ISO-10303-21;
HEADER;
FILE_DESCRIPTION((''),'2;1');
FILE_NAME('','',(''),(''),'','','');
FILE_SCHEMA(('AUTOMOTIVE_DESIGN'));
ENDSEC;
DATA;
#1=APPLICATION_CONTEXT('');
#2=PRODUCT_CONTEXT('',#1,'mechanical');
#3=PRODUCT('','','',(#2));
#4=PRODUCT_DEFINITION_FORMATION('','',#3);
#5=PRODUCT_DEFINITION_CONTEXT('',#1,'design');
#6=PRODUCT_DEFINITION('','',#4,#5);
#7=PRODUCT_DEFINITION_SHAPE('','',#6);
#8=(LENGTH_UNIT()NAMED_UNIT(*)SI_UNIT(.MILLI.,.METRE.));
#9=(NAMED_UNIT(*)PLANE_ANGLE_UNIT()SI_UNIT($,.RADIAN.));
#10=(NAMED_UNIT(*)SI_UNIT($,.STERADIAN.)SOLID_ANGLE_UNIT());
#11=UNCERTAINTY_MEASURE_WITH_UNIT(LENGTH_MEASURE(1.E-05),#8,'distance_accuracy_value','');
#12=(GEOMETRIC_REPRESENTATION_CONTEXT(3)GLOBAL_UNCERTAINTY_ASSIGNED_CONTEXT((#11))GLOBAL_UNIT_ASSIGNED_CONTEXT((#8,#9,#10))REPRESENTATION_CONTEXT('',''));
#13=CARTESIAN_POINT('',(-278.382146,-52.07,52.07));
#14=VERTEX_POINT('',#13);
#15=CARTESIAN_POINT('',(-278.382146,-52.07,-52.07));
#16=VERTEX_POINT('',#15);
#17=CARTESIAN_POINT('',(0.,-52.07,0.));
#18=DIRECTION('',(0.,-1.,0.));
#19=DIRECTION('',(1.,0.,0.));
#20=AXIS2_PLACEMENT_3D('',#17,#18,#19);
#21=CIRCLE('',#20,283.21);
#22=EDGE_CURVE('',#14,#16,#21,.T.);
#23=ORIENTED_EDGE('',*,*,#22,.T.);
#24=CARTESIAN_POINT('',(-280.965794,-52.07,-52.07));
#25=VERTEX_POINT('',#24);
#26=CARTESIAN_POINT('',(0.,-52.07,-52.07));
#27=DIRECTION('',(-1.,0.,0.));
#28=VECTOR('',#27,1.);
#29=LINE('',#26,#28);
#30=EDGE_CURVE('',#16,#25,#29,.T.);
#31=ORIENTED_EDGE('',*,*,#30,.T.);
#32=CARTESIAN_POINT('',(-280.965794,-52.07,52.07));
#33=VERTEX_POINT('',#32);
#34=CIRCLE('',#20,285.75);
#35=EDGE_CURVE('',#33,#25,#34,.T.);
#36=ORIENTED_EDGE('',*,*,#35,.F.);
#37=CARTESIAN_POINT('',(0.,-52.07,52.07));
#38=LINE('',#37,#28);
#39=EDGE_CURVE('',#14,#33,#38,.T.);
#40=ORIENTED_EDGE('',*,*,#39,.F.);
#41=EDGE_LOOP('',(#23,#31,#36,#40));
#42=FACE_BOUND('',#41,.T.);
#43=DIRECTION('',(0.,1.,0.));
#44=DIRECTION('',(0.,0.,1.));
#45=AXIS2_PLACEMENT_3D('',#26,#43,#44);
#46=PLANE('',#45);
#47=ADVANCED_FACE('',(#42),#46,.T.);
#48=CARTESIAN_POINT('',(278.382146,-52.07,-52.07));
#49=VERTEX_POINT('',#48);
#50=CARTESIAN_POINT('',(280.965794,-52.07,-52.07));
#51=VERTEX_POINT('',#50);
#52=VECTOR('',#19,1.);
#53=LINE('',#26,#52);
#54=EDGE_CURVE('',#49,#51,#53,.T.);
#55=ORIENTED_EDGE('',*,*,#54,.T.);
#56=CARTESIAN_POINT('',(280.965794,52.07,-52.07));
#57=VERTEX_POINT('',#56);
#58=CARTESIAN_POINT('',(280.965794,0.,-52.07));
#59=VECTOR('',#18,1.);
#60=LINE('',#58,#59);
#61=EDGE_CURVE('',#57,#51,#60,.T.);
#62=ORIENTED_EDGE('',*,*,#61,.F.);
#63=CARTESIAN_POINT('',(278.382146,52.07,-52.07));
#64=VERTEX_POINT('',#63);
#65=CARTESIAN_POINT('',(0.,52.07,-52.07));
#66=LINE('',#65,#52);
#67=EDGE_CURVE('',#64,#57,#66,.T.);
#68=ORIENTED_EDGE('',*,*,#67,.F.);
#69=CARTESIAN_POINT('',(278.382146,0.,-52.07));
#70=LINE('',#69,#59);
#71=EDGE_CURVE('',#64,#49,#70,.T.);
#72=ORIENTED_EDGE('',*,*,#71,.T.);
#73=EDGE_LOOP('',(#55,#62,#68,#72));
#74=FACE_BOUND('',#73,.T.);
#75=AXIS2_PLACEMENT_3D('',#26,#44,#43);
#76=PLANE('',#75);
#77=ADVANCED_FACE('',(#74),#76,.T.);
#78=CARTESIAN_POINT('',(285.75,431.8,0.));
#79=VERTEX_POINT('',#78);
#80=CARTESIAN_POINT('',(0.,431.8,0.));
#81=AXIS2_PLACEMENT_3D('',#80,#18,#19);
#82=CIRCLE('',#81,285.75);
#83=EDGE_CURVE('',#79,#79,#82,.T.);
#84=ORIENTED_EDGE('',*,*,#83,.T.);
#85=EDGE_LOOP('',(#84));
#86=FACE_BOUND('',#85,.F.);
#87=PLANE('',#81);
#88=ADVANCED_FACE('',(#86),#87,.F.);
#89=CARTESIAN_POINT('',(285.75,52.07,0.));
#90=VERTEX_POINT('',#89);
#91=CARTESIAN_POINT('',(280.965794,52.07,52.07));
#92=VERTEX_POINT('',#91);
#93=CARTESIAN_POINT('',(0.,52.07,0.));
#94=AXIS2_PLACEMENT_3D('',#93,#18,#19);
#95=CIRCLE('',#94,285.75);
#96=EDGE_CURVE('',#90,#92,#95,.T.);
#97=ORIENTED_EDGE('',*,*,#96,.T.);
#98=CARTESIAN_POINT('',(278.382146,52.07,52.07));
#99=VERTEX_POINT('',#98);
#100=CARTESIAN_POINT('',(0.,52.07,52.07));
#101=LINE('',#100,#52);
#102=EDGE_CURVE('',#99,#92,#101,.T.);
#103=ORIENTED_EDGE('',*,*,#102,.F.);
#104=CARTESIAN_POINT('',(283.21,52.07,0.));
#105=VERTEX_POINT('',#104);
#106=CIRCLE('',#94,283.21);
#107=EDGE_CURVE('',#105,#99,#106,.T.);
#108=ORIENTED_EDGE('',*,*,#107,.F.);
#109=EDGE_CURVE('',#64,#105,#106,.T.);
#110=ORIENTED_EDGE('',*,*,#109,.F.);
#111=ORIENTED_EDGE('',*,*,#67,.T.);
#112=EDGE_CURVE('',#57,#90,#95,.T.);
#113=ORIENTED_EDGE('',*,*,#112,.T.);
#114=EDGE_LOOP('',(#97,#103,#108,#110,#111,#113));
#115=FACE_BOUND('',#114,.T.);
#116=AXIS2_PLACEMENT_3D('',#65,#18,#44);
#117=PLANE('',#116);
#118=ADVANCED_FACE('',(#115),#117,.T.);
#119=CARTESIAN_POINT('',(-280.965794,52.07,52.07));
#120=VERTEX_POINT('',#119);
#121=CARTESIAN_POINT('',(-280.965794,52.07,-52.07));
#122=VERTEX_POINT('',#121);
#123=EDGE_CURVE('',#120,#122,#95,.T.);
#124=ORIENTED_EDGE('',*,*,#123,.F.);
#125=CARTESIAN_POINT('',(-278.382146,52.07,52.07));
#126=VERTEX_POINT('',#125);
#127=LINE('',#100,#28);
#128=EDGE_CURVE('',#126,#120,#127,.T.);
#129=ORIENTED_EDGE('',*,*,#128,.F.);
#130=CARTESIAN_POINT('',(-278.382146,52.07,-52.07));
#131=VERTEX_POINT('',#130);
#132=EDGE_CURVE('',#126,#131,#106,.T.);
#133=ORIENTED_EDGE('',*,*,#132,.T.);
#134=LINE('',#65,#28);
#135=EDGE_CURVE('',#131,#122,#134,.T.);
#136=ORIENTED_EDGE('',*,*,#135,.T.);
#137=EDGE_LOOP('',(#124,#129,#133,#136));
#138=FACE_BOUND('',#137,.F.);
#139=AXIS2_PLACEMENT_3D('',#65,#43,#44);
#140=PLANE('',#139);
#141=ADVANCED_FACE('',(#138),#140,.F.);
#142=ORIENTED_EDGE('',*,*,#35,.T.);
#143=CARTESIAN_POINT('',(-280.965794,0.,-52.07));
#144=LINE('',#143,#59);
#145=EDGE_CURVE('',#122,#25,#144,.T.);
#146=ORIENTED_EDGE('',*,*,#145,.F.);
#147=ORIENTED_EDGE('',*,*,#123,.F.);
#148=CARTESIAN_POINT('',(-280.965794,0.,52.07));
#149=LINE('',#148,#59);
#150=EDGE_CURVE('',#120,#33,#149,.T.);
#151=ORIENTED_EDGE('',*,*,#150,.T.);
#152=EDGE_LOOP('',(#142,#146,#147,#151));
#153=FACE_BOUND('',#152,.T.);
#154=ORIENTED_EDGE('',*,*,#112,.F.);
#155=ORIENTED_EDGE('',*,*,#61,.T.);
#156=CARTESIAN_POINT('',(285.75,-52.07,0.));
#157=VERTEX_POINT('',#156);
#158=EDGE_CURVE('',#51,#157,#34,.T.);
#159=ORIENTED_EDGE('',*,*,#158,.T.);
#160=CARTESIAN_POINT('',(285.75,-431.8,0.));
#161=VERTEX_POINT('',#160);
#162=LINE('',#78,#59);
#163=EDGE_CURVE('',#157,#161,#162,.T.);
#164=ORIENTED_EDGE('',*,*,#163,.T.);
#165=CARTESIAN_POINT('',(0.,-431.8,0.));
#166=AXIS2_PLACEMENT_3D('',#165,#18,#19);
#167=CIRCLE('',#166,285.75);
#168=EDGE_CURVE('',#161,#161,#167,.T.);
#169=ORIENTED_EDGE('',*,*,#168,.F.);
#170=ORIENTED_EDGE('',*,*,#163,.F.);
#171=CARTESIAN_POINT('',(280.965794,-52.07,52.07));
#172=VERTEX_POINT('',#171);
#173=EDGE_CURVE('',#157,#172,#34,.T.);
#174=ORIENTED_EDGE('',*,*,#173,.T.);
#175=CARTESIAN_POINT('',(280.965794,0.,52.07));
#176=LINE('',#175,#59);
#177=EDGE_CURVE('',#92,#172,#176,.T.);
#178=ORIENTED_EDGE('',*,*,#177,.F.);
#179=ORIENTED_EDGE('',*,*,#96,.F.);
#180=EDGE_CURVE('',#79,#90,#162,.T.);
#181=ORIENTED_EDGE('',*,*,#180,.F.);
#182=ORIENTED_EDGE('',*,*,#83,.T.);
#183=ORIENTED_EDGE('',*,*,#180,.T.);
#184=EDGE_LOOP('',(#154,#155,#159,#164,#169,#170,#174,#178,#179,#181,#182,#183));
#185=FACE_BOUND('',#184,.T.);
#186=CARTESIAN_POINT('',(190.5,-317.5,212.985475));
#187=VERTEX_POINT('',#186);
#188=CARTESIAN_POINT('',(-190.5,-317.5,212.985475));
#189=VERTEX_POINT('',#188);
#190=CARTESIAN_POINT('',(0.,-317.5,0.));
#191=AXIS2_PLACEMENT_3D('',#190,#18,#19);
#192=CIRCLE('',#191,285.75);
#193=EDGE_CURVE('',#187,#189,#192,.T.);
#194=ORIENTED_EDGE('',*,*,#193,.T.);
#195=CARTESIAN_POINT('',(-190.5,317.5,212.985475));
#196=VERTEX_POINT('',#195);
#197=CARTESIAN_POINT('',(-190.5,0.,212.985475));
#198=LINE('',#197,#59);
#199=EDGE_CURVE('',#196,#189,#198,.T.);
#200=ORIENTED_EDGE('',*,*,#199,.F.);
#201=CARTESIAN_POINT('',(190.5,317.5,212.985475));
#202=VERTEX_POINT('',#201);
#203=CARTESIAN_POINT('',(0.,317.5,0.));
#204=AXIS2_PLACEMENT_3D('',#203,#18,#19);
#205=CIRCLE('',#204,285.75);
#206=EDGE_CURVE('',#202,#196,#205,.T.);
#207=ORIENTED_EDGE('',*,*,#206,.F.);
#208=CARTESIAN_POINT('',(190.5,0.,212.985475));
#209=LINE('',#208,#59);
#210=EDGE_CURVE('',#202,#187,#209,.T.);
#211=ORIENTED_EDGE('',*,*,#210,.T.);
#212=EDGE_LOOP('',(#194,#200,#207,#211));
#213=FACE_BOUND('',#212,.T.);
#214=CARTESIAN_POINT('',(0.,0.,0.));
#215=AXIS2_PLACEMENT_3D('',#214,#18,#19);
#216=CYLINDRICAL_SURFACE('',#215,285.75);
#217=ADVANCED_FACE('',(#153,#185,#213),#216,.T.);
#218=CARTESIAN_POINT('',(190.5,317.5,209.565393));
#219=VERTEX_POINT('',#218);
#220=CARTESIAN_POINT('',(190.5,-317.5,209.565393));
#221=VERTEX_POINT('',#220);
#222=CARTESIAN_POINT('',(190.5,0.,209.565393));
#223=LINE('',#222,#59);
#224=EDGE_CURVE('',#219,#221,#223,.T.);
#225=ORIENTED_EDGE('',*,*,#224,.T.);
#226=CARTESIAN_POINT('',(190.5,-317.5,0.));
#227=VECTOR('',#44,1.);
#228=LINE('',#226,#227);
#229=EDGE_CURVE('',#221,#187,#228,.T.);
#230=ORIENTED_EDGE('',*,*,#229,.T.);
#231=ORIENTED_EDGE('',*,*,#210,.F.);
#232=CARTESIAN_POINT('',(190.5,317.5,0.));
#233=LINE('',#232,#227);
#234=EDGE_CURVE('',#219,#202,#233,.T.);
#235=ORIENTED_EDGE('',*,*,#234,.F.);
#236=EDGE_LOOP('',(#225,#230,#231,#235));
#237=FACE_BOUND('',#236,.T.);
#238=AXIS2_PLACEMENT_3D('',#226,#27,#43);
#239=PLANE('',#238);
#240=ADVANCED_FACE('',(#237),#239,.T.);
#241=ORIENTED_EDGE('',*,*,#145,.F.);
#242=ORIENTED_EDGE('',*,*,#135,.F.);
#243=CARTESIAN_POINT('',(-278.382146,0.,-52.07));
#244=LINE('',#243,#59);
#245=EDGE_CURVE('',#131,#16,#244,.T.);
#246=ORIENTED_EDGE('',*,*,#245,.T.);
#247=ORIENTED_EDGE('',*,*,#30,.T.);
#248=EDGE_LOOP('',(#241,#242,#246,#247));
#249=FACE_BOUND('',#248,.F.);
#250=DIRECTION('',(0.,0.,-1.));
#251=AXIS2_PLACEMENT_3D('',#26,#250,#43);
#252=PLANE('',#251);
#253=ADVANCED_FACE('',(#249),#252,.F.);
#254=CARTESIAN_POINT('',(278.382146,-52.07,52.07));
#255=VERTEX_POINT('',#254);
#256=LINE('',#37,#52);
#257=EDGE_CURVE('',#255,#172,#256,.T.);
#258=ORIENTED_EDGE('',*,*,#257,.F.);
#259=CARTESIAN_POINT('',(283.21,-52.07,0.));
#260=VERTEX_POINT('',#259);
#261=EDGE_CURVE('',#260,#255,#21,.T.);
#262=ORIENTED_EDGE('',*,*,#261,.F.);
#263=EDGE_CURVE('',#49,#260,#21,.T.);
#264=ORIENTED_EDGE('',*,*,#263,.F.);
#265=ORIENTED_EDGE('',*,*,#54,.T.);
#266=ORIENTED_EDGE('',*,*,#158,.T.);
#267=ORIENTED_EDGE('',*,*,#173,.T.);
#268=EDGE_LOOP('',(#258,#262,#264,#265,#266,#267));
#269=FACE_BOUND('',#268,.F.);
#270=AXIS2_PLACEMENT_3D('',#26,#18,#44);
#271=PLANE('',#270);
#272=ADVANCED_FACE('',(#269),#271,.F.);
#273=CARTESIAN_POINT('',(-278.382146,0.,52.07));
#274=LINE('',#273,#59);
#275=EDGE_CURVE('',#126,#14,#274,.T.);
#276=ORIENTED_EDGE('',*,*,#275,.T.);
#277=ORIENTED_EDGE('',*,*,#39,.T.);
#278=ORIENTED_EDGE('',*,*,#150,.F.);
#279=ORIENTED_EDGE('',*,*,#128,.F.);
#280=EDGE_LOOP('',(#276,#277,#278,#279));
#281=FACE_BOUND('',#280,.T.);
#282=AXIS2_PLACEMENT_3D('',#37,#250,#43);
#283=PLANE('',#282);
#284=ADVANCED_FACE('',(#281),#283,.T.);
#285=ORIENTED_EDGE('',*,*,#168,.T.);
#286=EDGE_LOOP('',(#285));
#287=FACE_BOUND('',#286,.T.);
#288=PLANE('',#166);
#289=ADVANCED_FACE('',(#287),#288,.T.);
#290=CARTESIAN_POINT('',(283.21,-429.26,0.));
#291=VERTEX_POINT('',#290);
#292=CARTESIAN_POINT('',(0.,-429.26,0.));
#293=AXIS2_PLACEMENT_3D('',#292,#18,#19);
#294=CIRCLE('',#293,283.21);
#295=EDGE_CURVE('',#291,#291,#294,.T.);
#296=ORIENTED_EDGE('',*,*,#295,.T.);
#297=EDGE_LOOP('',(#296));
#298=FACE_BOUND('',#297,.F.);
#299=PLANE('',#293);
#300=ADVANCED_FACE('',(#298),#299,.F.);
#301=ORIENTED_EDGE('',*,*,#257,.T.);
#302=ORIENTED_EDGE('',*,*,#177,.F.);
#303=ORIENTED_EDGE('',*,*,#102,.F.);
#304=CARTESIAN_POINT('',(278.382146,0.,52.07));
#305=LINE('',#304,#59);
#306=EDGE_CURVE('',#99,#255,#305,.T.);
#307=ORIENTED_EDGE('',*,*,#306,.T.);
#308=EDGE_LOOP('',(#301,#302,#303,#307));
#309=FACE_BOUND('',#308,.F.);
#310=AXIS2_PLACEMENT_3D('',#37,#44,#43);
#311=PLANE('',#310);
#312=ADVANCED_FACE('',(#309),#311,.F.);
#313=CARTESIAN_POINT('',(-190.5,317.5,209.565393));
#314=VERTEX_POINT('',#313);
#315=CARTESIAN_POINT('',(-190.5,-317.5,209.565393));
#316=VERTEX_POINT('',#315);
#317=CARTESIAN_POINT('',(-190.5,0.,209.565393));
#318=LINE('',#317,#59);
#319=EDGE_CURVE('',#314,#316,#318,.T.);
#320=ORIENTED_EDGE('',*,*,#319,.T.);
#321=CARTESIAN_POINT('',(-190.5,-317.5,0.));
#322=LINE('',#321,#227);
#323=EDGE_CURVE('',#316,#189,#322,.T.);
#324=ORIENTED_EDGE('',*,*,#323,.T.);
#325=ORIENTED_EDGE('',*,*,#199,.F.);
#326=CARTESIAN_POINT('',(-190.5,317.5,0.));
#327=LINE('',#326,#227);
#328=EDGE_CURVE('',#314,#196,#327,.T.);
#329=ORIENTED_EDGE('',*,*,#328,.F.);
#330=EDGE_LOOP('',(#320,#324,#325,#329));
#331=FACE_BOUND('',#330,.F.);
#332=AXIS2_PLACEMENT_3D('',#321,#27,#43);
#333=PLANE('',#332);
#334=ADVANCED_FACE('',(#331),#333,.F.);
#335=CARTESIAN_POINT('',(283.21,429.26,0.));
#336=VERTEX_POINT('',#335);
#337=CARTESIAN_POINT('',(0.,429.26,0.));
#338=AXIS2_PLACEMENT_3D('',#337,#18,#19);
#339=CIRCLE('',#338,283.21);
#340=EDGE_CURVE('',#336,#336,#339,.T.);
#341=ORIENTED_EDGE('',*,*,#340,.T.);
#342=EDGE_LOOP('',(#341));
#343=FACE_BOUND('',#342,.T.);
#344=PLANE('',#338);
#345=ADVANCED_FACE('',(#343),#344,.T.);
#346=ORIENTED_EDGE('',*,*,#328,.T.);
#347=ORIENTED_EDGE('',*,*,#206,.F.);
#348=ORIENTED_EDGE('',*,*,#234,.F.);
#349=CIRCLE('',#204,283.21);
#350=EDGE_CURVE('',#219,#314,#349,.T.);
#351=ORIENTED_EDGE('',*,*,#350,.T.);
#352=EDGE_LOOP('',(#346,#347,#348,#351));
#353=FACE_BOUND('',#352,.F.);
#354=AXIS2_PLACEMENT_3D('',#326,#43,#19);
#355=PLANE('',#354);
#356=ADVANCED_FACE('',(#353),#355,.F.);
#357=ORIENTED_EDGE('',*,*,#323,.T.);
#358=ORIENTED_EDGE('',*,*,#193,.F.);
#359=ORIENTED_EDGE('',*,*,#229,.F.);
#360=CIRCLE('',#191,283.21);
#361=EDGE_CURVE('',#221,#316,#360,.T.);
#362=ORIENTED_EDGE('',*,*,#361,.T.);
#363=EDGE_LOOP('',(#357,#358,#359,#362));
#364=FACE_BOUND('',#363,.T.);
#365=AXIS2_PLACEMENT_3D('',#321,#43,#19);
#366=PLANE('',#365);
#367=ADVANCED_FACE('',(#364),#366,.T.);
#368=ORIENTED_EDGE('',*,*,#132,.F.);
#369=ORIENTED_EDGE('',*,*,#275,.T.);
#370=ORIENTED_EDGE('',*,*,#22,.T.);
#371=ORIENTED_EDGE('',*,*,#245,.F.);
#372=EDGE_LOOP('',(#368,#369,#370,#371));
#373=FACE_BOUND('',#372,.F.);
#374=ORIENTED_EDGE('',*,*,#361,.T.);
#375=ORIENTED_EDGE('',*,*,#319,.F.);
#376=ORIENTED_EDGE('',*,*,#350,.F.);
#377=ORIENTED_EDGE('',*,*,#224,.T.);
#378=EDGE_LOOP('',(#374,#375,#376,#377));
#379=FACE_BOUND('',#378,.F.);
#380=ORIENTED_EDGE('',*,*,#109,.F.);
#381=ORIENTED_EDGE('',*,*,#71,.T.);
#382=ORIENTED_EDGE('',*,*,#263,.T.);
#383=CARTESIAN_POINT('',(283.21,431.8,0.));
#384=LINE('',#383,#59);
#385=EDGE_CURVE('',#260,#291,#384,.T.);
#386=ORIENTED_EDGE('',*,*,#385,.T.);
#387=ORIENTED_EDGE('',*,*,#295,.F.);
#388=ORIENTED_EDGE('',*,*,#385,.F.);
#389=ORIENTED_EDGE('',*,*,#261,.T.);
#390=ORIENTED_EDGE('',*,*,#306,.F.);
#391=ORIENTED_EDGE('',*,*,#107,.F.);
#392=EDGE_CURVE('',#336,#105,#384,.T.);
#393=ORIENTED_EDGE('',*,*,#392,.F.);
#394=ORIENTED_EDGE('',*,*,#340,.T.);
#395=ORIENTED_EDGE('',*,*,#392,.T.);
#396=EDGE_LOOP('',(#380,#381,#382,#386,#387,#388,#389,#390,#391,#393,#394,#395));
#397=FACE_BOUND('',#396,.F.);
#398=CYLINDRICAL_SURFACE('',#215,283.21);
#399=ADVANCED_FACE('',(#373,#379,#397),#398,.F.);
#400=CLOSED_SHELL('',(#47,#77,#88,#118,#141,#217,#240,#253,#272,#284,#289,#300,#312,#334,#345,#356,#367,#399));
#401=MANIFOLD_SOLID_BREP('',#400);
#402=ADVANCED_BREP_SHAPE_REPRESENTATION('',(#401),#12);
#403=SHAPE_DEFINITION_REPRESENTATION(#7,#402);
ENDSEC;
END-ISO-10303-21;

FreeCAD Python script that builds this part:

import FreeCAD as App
import Part
import Sketcher

V = App.Vector
Q = App.Units.Quantity


def faces_at(feature, points):
    """Names of the faces that lie closest to the given points."""
    faces = feature.Shape.Faces
    near = lambda p: min(range(len(faces)), key=lambda i: faces[i].distToShape(Part.Vertex(*p))[0])
    return sorted({f"Face{near(p) + 1}" for p in points})

doc = App.newDocument("Part")
body = doc.addObject("PartDesign::Body", "Body")

# Sketch on XZ plane
sketch1 = body.newObject("Sketcher::SketchObject", "Sketch")
sketch1.AttachmentSupport = (doc.getObject("XZ_Plane"), [""])
sketch1.MapMode = "FlatFace"
sketch1.addGeometry(Part.Circle(V(0, 0, 0), V(0, 0, 1), 286), False)
sketch1.addConstraint([
    Sketcher.Constraint("Coincident", 0, 3, -1, 1),
    Sketcher.Constraint("Diameter", 0, Q("22.5 in")),
])
pad1 = body.newObject("PartDesign::Pad", "Pad")
pad1.Profile = sketch1
pad1.Length = Q("34 in")
pad1.Midplane = True

# Sketch on XY plane
sketch2 = body.newObject("Sketcher::SketchObject", "Sketch001")
sketch2.AttachmentSupport = (doc.getObject("XY_Plane"), [""])
sketch2.MapMode = "FlatFace"
sketch2.addGeometry([
    Part.LineSegment(V(-190, 318, 0), V(-190, -318, 0)),
    Part.LineSegment(V(-190, -318, 0), V(190, -318, 0)),
    Part.LineSegment(V(190, -318, 0), V(190, 318, 0)),
    Part.LineSegment(V(190, 318, 0), V(-190, 318, 0)),
], False)
sketch2.addConstraint([
    Sketcher.Constraint("Coincident", 0, 2, 1, 1),
    Sketcher.Constraint("Coincident", 1, 2, 2, 1),
    Sketcher.Constraint("Coincident", 2, 2, 3, 1),
    Sketcher.Constraint("Coincident", 3, 2, 0, 1),
    Sketcher.Constraint("Vertical", 0),
    Sketcher.Constraint("Horizontal", 1),
    Sketcher.Constraint("Vertical", 2),
    Sketcher.Constraint("Horizontal", 3),
    Sketcher.Constraint("Symmetric", 0, 2, 2, 2, -1, 1),
    Sketcher.Constraint("DistanceX", 1, 1, 1, 2, Q("15 in")),
    Sketcher.Constraint("DistanceY", 0, 2, 0, 1, Q("25 in")),
])
pocket1 = body.newObject("PartDesign::Pocket", "Pocket")
pocket1.Profile = sketch2
pocket1.Length = Q("17.8 in")
pocket1.Reversed = True
doc.recompute()

thickness = body.newObject("PartDesign::Thickness", "Thickness")
thickness.Base = (pocket1, faces_at(pocket1, [
    (0, 317.5, 142.875),
    (-190.5, 0, 106.493),
    (0, 0, 0),
    (0, -317.5, 142.875),
    (190.5, 0, 106.493),
]))
thickness.Value = Q("0.1 in")
thickness.Reversed = True
thickness.Join = "Arc"

# Sketch on YZ plane
sketch3 = body.newObject("Sketcher::SketchObject", "Sketch002")
sketch3.AttachmentSupport = (doc.getObject("YZ_Plane"), [""])
sketch3.MapMode = "FlatFace"
sketch3.addGeometry([
    Part.LineSegment(V(-52, 52, 0), V(-52, -52, 0)),
    Part.LineSegment(V(-52, -52, 0), V(52, -52, 0)),
    Part.LineSegment(V(52, -52, 0), V(52, 52, 0)),
    Part.LineSegment(V(52, 52, 0), V(-52, 52, 0)),
], False)
sketch3.addConstraint([
    Sketcher.Constraint("Coincident", 0, 2, 1, 1),
    Sketcher.Constraint("Coincident", 1, 2, 2, 1),
    Sketcher.Constraint("Coincident", 2, 2, 3, 1),
    Sketcher.Constraint("Coincident", 3, 2, 0, 1),
    Sketcher.Constraint("Vertical", 0),
    Sketcher.Constraint("Horizontal", 1),
    Sketcher.Constraint("Vertical", 2),
    Sketcher.Constraint("Horizontal", 3),
    Sketcher.Constraint("Symmetric", 0, 2, 2, 2, -1, 1),
    Sketcher.Constraint("Equal", 3, 0),
    Sketcher.Constraint("DistanceX", 1, 1, 1, 2, Q("4.1 in")),
])
pocket2 = body.newObject("PartDesign::Pocket", "Pocket001")
pocket2.Profile = sketch3
pocket2.Type = "ThroughAll"
pocket2.Midplane = True

doc.recompute()
